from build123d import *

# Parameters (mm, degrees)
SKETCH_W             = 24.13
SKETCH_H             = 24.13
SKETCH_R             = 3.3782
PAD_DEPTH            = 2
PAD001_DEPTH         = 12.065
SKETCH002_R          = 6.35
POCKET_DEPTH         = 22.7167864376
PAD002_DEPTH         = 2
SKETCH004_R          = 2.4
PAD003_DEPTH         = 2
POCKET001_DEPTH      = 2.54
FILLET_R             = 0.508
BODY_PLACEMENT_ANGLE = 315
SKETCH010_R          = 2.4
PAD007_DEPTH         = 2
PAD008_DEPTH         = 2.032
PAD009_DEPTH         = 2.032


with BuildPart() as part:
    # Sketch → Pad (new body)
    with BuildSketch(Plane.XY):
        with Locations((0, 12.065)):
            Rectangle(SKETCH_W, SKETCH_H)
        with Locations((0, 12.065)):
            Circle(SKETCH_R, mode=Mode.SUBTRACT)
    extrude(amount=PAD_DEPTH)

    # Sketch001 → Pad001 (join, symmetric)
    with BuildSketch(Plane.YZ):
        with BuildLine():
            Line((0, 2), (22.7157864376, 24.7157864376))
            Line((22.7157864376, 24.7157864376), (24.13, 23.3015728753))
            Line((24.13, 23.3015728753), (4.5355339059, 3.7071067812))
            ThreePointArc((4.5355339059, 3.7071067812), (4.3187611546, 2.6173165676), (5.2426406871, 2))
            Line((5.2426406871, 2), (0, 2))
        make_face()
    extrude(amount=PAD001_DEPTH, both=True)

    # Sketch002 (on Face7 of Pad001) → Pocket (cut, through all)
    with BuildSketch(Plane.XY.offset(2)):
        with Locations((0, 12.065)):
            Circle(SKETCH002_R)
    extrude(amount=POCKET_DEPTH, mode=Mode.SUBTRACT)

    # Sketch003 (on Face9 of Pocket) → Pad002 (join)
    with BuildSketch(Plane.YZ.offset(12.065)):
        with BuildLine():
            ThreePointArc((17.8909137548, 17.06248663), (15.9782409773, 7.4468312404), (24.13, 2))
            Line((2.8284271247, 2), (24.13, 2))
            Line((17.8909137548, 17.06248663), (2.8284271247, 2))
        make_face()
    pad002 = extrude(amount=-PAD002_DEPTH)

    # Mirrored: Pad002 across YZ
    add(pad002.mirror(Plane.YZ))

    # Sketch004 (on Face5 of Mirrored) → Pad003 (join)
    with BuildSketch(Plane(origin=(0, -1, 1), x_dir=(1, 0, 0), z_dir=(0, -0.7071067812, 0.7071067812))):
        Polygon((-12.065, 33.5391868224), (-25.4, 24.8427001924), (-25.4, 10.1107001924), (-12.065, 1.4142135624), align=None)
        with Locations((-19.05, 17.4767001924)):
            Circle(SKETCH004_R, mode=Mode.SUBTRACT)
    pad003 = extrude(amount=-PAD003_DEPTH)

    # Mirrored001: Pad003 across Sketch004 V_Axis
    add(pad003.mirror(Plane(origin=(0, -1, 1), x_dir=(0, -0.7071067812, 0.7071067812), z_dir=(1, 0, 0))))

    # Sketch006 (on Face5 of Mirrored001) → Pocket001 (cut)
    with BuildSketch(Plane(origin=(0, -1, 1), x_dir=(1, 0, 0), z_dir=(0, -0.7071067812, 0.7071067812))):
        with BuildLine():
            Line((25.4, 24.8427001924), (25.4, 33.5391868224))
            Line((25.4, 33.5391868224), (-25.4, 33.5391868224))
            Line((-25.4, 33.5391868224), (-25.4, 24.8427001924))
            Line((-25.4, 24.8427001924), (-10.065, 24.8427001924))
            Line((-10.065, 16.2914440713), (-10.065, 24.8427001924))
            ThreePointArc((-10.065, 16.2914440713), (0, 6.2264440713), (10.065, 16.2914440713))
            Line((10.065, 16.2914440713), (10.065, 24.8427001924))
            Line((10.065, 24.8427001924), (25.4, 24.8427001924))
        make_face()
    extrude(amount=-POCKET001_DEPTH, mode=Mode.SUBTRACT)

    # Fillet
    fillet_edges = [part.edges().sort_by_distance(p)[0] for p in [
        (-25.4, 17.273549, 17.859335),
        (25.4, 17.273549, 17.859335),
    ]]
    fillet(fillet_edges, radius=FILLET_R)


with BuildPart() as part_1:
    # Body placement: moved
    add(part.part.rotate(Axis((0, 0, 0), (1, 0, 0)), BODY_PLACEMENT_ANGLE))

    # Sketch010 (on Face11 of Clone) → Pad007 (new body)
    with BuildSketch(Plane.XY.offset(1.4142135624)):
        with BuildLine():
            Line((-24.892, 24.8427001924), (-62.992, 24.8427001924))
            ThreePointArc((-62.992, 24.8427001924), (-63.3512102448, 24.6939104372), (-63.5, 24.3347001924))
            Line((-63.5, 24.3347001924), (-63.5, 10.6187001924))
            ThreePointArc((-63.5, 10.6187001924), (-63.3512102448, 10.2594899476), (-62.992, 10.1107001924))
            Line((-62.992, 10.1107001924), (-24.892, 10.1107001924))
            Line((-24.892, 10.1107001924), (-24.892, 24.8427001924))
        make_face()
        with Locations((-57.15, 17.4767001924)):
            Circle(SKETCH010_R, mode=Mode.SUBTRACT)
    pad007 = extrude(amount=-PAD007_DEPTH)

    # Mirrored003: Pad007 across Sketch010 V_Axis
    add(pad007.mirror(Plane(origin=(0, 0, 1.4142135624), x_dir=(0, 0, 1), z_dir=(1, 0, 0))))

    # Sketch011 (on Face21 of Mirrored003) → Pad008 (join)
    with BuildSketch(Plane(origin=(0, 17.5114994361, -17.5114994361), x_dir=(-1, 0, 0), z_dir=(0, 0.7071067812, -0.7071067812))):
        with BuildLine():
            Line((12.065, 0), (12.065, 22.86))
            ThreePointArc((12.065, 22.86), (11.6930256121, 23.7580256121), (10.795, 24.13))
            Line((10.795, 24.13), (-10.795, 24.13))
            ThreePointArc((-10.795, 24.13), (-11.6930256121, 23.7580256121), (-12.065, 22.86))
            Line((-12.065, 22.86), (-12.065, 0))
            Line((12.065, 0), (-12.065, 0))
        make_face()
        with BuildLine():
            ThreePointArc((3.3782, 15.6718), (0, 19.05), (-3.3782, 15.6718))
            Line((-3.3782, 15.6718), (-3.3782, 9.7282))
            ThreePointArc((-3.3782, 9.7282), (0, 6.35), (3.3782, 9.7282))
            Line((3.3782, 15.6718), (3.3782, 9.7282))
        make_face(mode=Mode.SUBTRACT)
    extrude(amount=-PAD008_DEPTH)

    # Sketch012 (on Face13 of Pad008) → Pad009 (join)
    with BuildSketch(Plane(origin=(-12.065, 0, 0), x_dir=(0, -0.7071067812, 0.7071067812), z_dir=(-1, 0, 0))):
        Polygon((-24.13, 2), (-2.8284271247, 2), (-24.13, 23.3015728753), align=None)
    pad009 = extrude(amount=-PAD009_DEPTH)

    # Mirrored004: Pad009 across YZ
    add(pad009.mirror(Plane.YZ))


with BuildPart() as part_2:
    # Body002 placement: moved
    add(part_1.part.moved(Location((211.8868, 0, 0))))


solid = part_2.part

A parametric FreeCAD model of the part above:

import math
import FreeCAD as App
import Part
import Sketcher
from FreeCAD import Vector
Q = App.Units.Quantity


def edges_at(feature, points):
    """Names of the edges that pass closest to the given points."""
    edges = feature.Shape.Edges
    near = lambda p: min(range(len(edges)), key=lambda i: edges[i].distToShape(Part.Vertex(*p))[0])
    return sorted({f"Edge{near(p) + 1}" for p in points})


def add_polygon(sketch, points):
    """Adds a closed chain of lines whose ends are joined by coincident constraints."""
    first, n = sketch.GeometryCount, len(points)
    for a, b in zip(points, points[1:] + points[:1]):
        sketch.addGeometry(Part.LineSegment(App.Vector(*a, 0), App.Vector(*b, 0)), False)
    for i in range(n):
        sketch.addConstraint(Sketcher.Constraint("Coincident", first + i, 2, first + (i + 1) % n, 1))

doc = App.newDocument("Part")
body = doc.addObject("PartDesign::Body", "Body")

sketch1 = body.newObject("Sketcher::SketchObject", "Sketch")
sketch1.AttachmentSupport = (doc.getObject("XY_Plane"), [""])
sketch1.MapMode = "FlatFace"
add_polygon(sketch1, [(-12.1, 24.1), (-12.1, 0), (12.1, 0), (12.1, 24.1)])
sketch1.addGeometry(Part.Circle(Vector(0, 12.1, 0), Vector(0, 0, 1), 3.4), False)
sketch1.addConstraint(Sketcher.Constraint("Vertical", 0))
sketch1.addConstraint(Sketcher.Constraint("Horizontal", 1))
sketch1.addConstraint(Sketcher.Constraint("Vertical", 2))
sketch1.addConstraint(Sketcher.Constraint("Horizontal", 3))
sketch1.addConstraint(Sketcher.Constraint("Symmetric", 0, 2, 1, 2, -1, 1))
sketch1.addConstraint(Sketcher.Constraint("PointOnObject", 4, 3, -2))
sketch1.addConstraint(Sketcher.Constraint("Equal", 3, 0))
sketch1.addConstraint(Sketcher.Constraint("Diameter", 4, Q("0.266 in")))
sketch1.addConstraint(Sketcher.Constraint("DistanceX", 1, 1, 1, 2, Q("0.95 in")))
sketch1.addConstraint(Sketcher.Constraint("DistanceY", -1, 1, 4, 3, Q("0.475 in")))
pad1 = body.newObject("PartDesign::Pad", "Pad")
pad1.Profile = sketch1
pad1.Length = 2

sketch2 = body.newObject("Sketcher::SketchObject", "Sketch001")
sketch2.AttachmentSupport = (doc.getObject("YZ_Plane"), [""])
sketch2.MapMode = "FlatFace"
sketch2.addGeometry(Part.LineSegment(Vector(22.7, 24.7, 0), Vector(0, 2, 0)), False)
sketch2.addGeometry(Part.LineSegment(Vector(0, 2, 0), Vector(5.2, 2, 0)), False)
sketch2.addGeometry(Part.ArcOfCircle(Part.Circle(Vector(5.2, 3, 0), Vector(0, 0, 1), 1), math.radians(135), math.radians(270)), False)
sketch2.addGeometry(Part.LineSegment(Vector(4.5, 3.7, 0), Vector(24.1, 23.3, 0)), False)
sketch2.addGeometry(Part.LineSegment(Vector(24.1, 23.3, 0), Vector(22.7, 24.7, 0)), False)
sketch2.addConstraint(Sketcher.Constraint("Coincident", 0, 2, 1, 1))
sketch2.addConstraint(Sketcher.Constraint("Tangent", 1, 2, 2, 2))
sketch2.addConstraint(Sketcher.Constraint("Tangent", 2, 1, 3, 1))
sketch2.addConstraint(Sketcher.Constraint("Coincident", 3, 2, 4, 1))
sketch2.addConstraint(Sketcher.Constraint("Coincident", 4, 2, 0, 1))
sketch2.addConstraint(Sketcher.Constraint("Horizontal", 1))
sketch2.addConstraint(Sketcher.Constraint("PointOnObject", 0, 2, -2))
sketch2.addConstraint(Sketcher.Constraint("Parallel", 0, 3))
sketch2.addConstraint(Sketcher.Constraint("Perpendicular", 3, 4))
sketch2.addConstraint(Sketcher.Constraint("Angle", 0, Q("-135 deg")))
sketch2.addConstraint(Sketcher.Constraint("DistanceX", -1, 1, 3, 2, Q("0.95 in")))
sketch2.addConstraint(Sketcher.Constraint("Radius", 2, Q("1 mm")))
sketch2.addConstraint(Sketcher.Constraint("Distance", 4, Q("2 mm")))
sketch2.addConstraint(Sketcher.Constraint("DistanceY", -1, 1, 2, 3, Q("3 mm")))
pad2 = body.newObject("PartDesign::Pad", "Pad001")
pad2.Profile = sketch2
pad2.Length = Q("0.95 in")
pad2.Midplane = True

sketch3 = body.newObject("Sketcher::SketchObject", "Sketch002")
sketch3.AttachmentSupport = (doc.getObject("XY_Plane"), [""])
sketch3.MapMode = "FlatFace"
sketch3.AttachmentOffset = App.Placement(Vector(0, 0, 2), App.Rotation())
sketch3.addGeometry(Part.Circle(Vector(0, 12, 0), Vector(0, 0, 1), 6), False)
sketch3.addConstraint(Sketcher.Constraint("PointOnObject", 0, 3, -2))
sketch3.addConstraint(Sketcher.Constraint("Diameter", 0, Q("0.5 in")))
sketch3.addConstraint(Sketcher.Constraint("DistanceY", -1, 1, 0, 3, Q("0.475 in")))
pocket1 = body.newObject("PartDesign::Pocket", "Pocket")
pocket1.Profile = sketch3
pocket1.Type = "ThroughAll"
pocket1.Reversed = True

sketch4 = body.newObject("Sketcher::SketchObject", "Sketch003")
sketch4.AttachmentSupport = (doc.getObject("YZ_Plane"), [""])
sketch4.MapMode = "FlatFace"
sketch4.AttachmentOffset = App.Placement(Vector(0, 0, 0.475 * 25.4), App.Rotation())
sketch4.addGeometry(Part.ArcOfCircle(Part.Circle(Vector(24, 11, 0), Vector(0, 0, 1), 9), math.radians(135), math.radians(270)), False)
sketch4.addGeometry(Part.LineSegment(Vector(18, 17, 0), Vector(3, 2, 0)), False)
sketch4.addGeometry(Part.LineSegment(Vector(3, 2, 0), Vector(24, 2, 0)), False)
sketch4.addConstraint(Sketcher.Constraint("Tangent", 0, 1, 1, 1))
sketch4.addConstraint(Sketcher.Constraint("Coincident", 1, 2, 2, 1))
sketch4.addConstraint(Sketcher.Constraint("Tangent", 2, 2, 0, 2))
sketch4.addConstraint(Sketcher.Constraint("Horizontal", 2))
sketch4.addConstraint(Sketcher.Constraint("Angle", 1, Q("-135 deg")))
sketch4.addConstraint(Sketcher.Constraint("DistanceX", -1, 1, 0, 3, Q("0.95 in")))
sketch4.addConstraint(Sketcher.Constraint("Radius", 0, Q("8.8234 mm")))
sketch4.addConstraint(Sketcher.Constraint("DistanceY", -1, 1, 0, 3, Q("10.8234 mm")))
pad3 = body.newObject("PartDesign::Pad", "Pad002")
pad3.Profile = sketch4
pad3.Length = 2
pad3.Reversed = True
doc.recompute()

mirrored = body.newObject("PartDesign::Mirrored", "Mirrored")
mirrored.Originals = [pad3]
mirrored.MirrorPlane = (doc.getObject("YZ_Plane"), [""])
body.Tip = mirrored

sketch5 = body.newObject("Sketcher::SketchObject", "Sketch004")
sketch5.Placement = App.Placement(Vector(0, -1, 1), App.Rotation(Vector(1, 0, 0), Vector(0, 0.707106781, 0.707106781), Vector(0, -0.707106781, 0.707106781), "ZXY"))
add_polygon(sketch5, [(-12.1, 33.5), (-25.4, 24.8), (-25.4, 10.1), (-12.1, 1.4)])
sketch5.addGeometry(Part.Circle(Vector(-19.1, 17.5, 0), Vector(0, 0, 1), 2.4), False)
sketch5.addConstraint(Sketcher.Constraint("Vertical", 1))
sketch5.addConstraint(Sketcher.Constraint("Vertical", 3))
sketch5.addConstraint(Sketcher.Constraint("Equal", 0, 2))
sketch5.addConstraint(Sketcher.Constraint("DistanceX", 0, 2, -1, 1, Q("1 in")))
sketch5.addConstraint(Sketcher.Constraint("DistanceY", 1, 2, 1, 1, Q("0.58 in")))
sketch5.addConstraint(Sketcher.Constraint("Diameter", 4, Q("4.8 mm")))
sketch5.addConstraint(Sketcher.Constraint("DistanceX", 4, 3, -1, 1, Q("0.75 in")))
sketch5.addConstraint(Sketcher.Constraint("DistanceY", 4, 3, 0, 2, Q("0.29 in")))
sketch5.addConstraint(Sketcher.Constraint("DistanceX", 2, 2, -1, 1, Q("0.475 in")))
sketch5.addConstraint(Sketcher.Constraint("DistanceY", -1, 1, 4, 3, Q("17.4767 mm")))
sketch5.addConstraint(Sketcher.Constraint("DistanceY", 3, 1, 3, 2, Q("32.124973 mm")))
pad4 = body.newObject("PartDesign::Pad", "Pad003")
pad4.Profile = sketch5
pad4.Length = 2
pad4.Reversed = True
doc.recompute()

mirrored2 = body.newObject("PartDesign::Mirrored", "Mirrored001")
mirrored2.Originals = [pad4]
mirrored2.MirrorPlane = (doc.getObject("YZ_Plane"), [""])
body.Tip = mirrored2

sketch6 = body.newObject("Sketcher::SketchObject", "Sketch005")
sketch6.Placement = App.Placement(Vector(0, -1, 1), App.Rotation(Vector(1, 0, 0), Vector(0, 0.707106781, 0.707106781), Vector(0, -0.707106781, 0.707106781), "ZXY"))
sketch6.addGeometry(Part.LineSegment(Vector(25, 25, 0), Vector(25, 34, 0)), False)
sketch6.addGeometry(Part.LineSegment(Vector(25, 34, 0), Vector(-25, 34, 0)), False)
sketch6.addGeometry(Part.LineSegment(Vector(-25, 34, 0), Vector(-25, 25, 0)), False)
sketch6.addGeometry(Part.LineSegment(Vector(-25, 25, 0), Vector(-10, 25, 0)), False)
sketch6.addGeometry(Part.LineSegment(Vector(-10, 25, 0), Vector(-10, 16, 0)), False)
sketch6.addGeometry(Part.ArcOfCircle(Part.Circle(Vector(0, 16, 0), Vector(0, 0, 1), 10), math.radians(180), math.radians(360)), False)
sketch6.addGeometry(Part.LineSegment(Vector(10, 16, 0), Vector(10, 25, 0)), False)
sketch6.addGeometry(Part.LineSegment(Vector(10, 25, 0), Vector(25, 25, 0)), False)
sketch6.addConstraint(Sketcher.Constraint("Coincident", 0, 2, 1, 1))
sketch6.addConstraint(Sketcher.Constraint("Coincident", 1, 2, 2, 1))
sketch6.addConstraint(Sketcher.Constraint("Coincident", 2, 2, 3, 1))
sketch6.addConstraint(Sketcher.Constraint("Coincident", 3, 2, 4, 1))
sketch6.addConstraint(Sketcher.Constraint("Tangent", 4, 2, 5, 1))
sketch6.addConstraint(Sketcher.Constraint("Tangent", 5, 2, 6, 1))
sketch6.addConstraint(Sketcher.Constraint("Coincident", 6, 2, 7, 1))
sketch6.addConstraint(Sketcher.Constraint("Coincident", 7, 2, 0, 1))
sketch6.addConstraint(Sketcher.Constraint("Vertical", 0))
sketch6.addConstraint(Sketcher.Constraint("Horizontal", 1))
sketch6.addConstraint(Sketcher.Constraint("Vertical", 2))
sketch6.addConstraint(Sketcher.Constraint("Horizontal", 3))
sketch6.addConstraint(Sketcher.Constraint("Vertical", 4))
sketch6.addConstraint(Sketcher.Constraint("Vertical", 6))
sketch6.addConstraint(Sketcher.Constraint("Horizontal", 7))
sketch6.addConstraint(Sketcher.Constraint("Symmetric", 3, 2, 6, 2, -2))
sketch6.addConstraint(Sketcher.Constraint("Equal", 3, 7))
sketch6.addConstraint(Sketcher.Constraint("DistanceX", 1, 2, 1, 1, Q("2 in")))
sketch6.addConstraint(Sketcher.Constraint("Radius", 5, Q("10.065 mm")))
sketch6.addConstraint(Sketcher.Constraint("DistanceY", -1, 1, 2, 2, Q("24.8427 mm")))
sketch6.addConstraint(Sketcher.Constraint("DistanceY", 0, 1, 0, 2, Q("8.696487 mm")))
sketch6.addConstraint(Sketcher.Constraint("DistanceY", 4, 2, 4, 1, Q("8.551256 mm")))
pocket2 = body.newObject("PartDesign::Pocket", "Pocket001")
pocket2.Profile = sketch6
pocket2.Length = Q("0.1 in")
doc.recompute()

fillet = body.newObject("PartDesign::Fillet", "Fillet")
fillet.Base = (pocket2, edges_at(pocket2, [(-25.4, 17.274, 17.859), (25.4, 17.274, 17.859)]))
fillet.Radius = Q("0.02 in")
body2 = doc.addObject("PartDesign::Body", "Body001")
doc.recompute()

body.Placement = App.Placement(Vector(0, 0, 0), App.Rotation(Vector(1, 0, 0), 315))
boolean = body2.newObject("PartDesign::Boolean", "Boolean")
boolean.Type = "Fuse"
boolean.addObjects([body])

sketch7 = body2.newObject("Sketcher::SketchObject", "Sketch006")
sketch7.AttachmentSupport = (doc.getObject("XY_Plane001"), [""])
sketch7.MapMode = "FlatFace"
sketch7.AttachmentOffset = App.Placement(Vector(0, 0, 1.414214), App.Rotation())
sketch7.addGeometry(Part.LineSegment(Vector(-24.9, 24.8, 0), Vector(-63, 24.8, 0)), False)
sketch7.addGeometry(Part.ArcOfCircle(Part.Circle(Vector(-63, 24.3, 0), Vector(0, 0, 1), 0.5), math.radians(90), math.radians(180)), False)
sketch7.addGeometry(Part.LineSegment(Vector(-63.5, 24.3, 0), Vector(-63.5, 10.6, 0)), False)
sketch7.addGeometry(Part.ArcOfCircle(Part.Circle(Vector(-63, 10.6, 0), Vector(0, 0, 1), 0.5), math.radians(-180), math.radians(-90)), False)
sketch7.addGeometry(Part.LineSegment(Vector(-63, 10.1, 0), Vector(-24.9, 10.1, 0)), False)
sketch7.addGeometry(Part.LineSegment(Vector(-24.9, 10.1, 0), Vector(-24.9, 24.8, 0)), False)
sketch7.addGeometry(Part.Circle(Vector(-57.1, 17.5, 0), Vector(0, 0, 1), 2.4), False)
sketch7.addConstraint(Sketcher.Constraint("Tangent", 0, 2, 1, 1))
sketch7.addConstraint(Sketcher.Constraint("Tangent", 1, 2, 2, 1))
sketch7.addConstraint(Sketcher.Constraint("Tangent", 2, 2, 3, 1))
sketch7.addConstraint(Sketcher.Constraint("Tangent", 3, 2, 4, 1))
sketch7.addConstraint(Sketcher.Constraint("Coincident", 4, 2, 5, 1))
sketch7.addConstraint(Sketcher.Constraint("Coincident", 5, 2, 0, 1))
sketch7.addConstraint(Sketcher.Constraint("Horizontal", 0))
sketch7.addConstraint(Sketcher.Constraint("Vertical", 2))
sketch7.addConstraint(Sketcher.Constraint("Horizontal", 4))
sketch7.addConstraint(Sketcher.Constraint("Vertical", 5))
sketch7.addConstraint(Sketcher.Constraint("Equal", 1, 3))
sketch7.addConstraint(Sketcher.Constraint("Radius", 1, Q("0.02 in")))
sketch7.addConstraint(Sketcher.Constraint("DistanceX", 0, 2, 0, 1, Q("1.5 in")))
sketch7.addConstraint(Sketcher.Constraint("DistanceY", 2, 2, 2, 1, Q("0.54 in")))
sketch7.addConstraint(Sketcher.Constraint("DistanceX", 1, 2, -1, 1, Q("2.5 in")))
sketch7.addConstraint(Sketcher.Constraint("Diameter", 6, Q("4.8 mm")))
sketch7.addConstraint(Sketcher.Constraint("DistanceX", 6, 3, -1, 1, Q("2.25 in")))
sketch7.addConstraint(Sketcher.Constraint("DistanceY", 3, 3, 6, 3, Q("0.27 in")))
sketch7.addConstraint(Sketcher.Constraint("DistanceY", -1, 1, 1, 3, Q("24.3347 mm")))
pad5 = body2.newObject("PartDesign::Pad", "Pad004")
pad5.Profile = sketch7
pad5.Length = 2
pad5.Reversed = True
doc.recompute()

mirrored3 = body2.newObject("PartDesign::Mirrored", "Mirrored002")
mirrored3.Originals = [pad5]
mirrored3.MirrorPlane = (doc.getObject("YZ_Plane001"), [""])
body2.Tip = mirrored3

sketch8 = body2.newObject("Sketcher::SketchObject", "Sketch007")
sketch8.Placement = App.Placement(Vector(0, 17.511499, -17.511499), App.Rotation(Vector(-1, 0, 0), Vector(0, 0.707106781, 0.707106781), Vector(0, 0.707106781, -0.707106781), "ZXY"))
sketch8.addGeometry(Part.LineSegment(Vector(12.1, 0, 0), Vector(12.1, 22.9, 0)), False)
sketch8.addGeometry(Part.ArcOfCircle(Part.Circle(Vector(10.8, 22.9, 0), Vector(0, 0, 1), 1.3), math.radians(0), math.radians(90)), False)
sketch8.addGeometry(Part.LineSegment(Vector(10.8, 24.1, 0), Vector(-10.8, 24.1, 0)), False)
sketch8.addGeometry(Part.ArcOfCircle(Part.Circle(Vector(-10.8, 22.9, 0), Vector(0, 0, 1), 1.3), math.radians(90), math.radians(180)), False)
sketch8.addGeometry(Part.LineSegment(Vector(-12.1, 22.9, 0), Vector(-12.1, 0, 0)), False)
sketch8.addGeometry(Part.LineSegment(Vector(-12.1, 0, 0), Vector(12.1, 0, 0)), False)
sketch8.addGeometry(Part.ArcOfCircle(Part.Circle(Vector(0, 15.7, 0), Vector(0, 0, 1), 3.4), math.radians(0), math.radians(180)), False)
sketch8.addGeometry(Part.LineSegment(Vector(3.4, 15.7, 0), Vector(3.4, 9.7, 0)), False)
sketch8.addGeometry(Part.ArcOfCircle(Part.Circle(Vector(0, 9.7, 0), Vector(0, 0, 1), 3.4), math.radians(180), math.radians(360)), False)
sketch8.addGeometry(Part.LineSegment(Vector(-3.4, 9.7, 0), Vector(-3.4, 15.7, 0)), False)
sketch8.addConstraint(Sketcher.Constraint("Tangent", 0, 2, 1, 1))
sketch8.addConstraint(Sketcher.Constraint("Tangent", 1, 2, 2, 1))
sketch8.addConstraint(Sketcher.Constraint("Tangent", 2, 2, 3, 1))
sketch8.addConstraint(Sketcher.Constraint("Tangent", 3, 2, 4, 1))
sketch8.addConstraint(Sketcher.Constraint("Coincident", 4, 2, 5, 1))
sketch8.addConstraint(Sketcher.Constraint("Coincident", 5, 2, 0, 1))
sketch8.addConstraint(Sketcher.Constraint("Tangent", 6, 1, 7, 1))
sketch8.addConstraint(Sketcher.Constraint("Tangent", 7, 2, 8, 2))
sketch8.addConstraint(Sketcher.Constraint("Tangent", 8, 1, 9, 1))
sketch8.addConstraint(Sketcher.Constraint("Tangent", 9, 2, 6, 2))
sketch8.addConstraint(Sketcher.Constraint("Vertical", 0))
sketch8.addConstraint(Sketcher.Constraint("Horizontal", 2))
sketch8.addConstraint(Sketcher.Constraint("Vertical", 4))
sketch8.addConstraint(Sketcher.Constraint("Horizontal", 5))
sketch8.addConstraint(Sketcher.Constraint("Vertical", 7))
sketch8.addConstraint(Sketcher.Constraint("Vertical", 9))
sketch8.addConstraint(Sketcher.Constraint("Equal", 1, 3))
sketch8.addConstraint(Sketcher.Constraint("Symmetric", 4, 2, 5, 2, -1, 1))
sketch8.addConstraint(Sketcher.Constraint("PointOnObject", 6, 3, -2))
sketch8.addConstraint(Sketcher.Constraint("Radius", 1, Q("0.05 in")))
sketch8.addConstraint(Sketcher.Constraint("DistanceY", 0, 1, 0, 2, Q("0.9 in")))
sketch8.addConstraint(Sketcher.Constraint("Radius", 6, Q("0.133 in")))
sketch8.addConstraint(Sketcher.Constraint("DistanceX", 2, 2, 2, 1, Q("0.85 in")))
sketch8.addConstraint(Sketcher.Constraint("DistanceY", 7, 2, 7, 1, Q("0.234 in")))
sketch8.addConstraint(Sketcher.Constraint("DistanceY", -1, 1, 6, 3, Q("0.617 in")))
pad6 = body2.newObject("PartDesign::Pad", "Pad005")
pad6.Profile = sketch8
pad6.Length = Q("0.08 in")
pad6.Reversed = True

sketch9 = body2.newObject("Sketcher::SketchObject", "Sketch008")
sketch9.AttachmentSupport = (doc.getObject("YZ_Plane001"), [""])
sketch9.MapMode = "FlatFace"
sketch9.AttachmentOffset = App.Placement(Vector(0, 0, -0.475 * 25.4), App.Rotation())
add_polygon(sketch9, [(18, -16), (3, -1), (34, -1)])
sketch9.addConstraint(Sketcher.Constraint("Horizontal", 1))
sketch9.addConstraint(Sketcher.Constraint("Perpendicular", 0, 2))
sketch9.addConstraint(Sketcher.Constraint("Equal", 0, 2))
sketch9.addConstraint(Sketcher.Constraint("DistanceX", -1, 1, 2, 2, Q("18.4767 mm")))
sketch9.addConstraint(Sketcher.Constraint("DistanceX", 1, 1, 1, 2, Q("30.124973 mm")))
sketch9.addConstraint(Sketcher.Constraint("DistanceY", 0, 2, -1, 1, Q("0.585786 mm")))
pad7 = body2.newObject("PartDesign::Pad", "Pad006")
pad7.Profile = sketch9
pad7.Length = Q("0.08 in")
doc.recompute()

mirrored4 = body2.newObject("PartDesign::Mirrored", "Mirrored003")
mirrored4.Originals = [pad7]
mirrored4.MirrorPlane = (doc.getObject("YZ_Plane001"), [""])
body2.Tip = mirrored4
body3 = doc.addObject("PartDesign::Body", "Body002")
doc.recompute()

body2.Placement = App.Placement(Vector(211.8868, 0, 0), App.Rotation(Vector(0, 0, 1), 0))
boolean2 = body3.newObject("PartDesign::Boolean", "Boolean001")
boolean2.Type = "Fuse"
boolean2.addObjects([body2])

doc.recompute()
